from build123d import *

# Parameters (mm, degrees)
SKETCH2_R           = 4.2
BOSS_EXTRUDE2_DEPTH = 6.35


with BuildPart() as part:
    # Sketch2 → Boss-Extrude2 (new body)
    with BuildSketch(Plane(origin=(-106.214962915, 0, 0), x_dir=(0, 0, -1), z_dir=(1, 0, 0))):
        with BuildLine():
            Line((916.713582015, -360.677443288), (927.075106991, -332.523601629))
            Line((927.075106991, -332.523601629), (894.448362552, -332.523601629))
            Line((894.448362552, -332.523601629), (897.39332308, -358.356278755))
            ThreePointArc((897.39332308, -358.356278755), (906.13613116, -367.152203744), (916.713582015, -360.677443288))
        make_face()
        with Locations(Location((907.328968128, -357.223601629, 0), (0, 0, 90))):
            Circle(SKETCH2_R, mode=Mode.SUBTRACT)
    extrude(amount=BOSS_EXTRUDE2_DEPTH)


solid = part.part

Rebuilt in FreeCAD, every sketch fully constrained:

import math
import FreeCAD as App
import Part
import Sketcher
Q = App.Units.Quantity

doc = App.newDocument("Part")
body = doc.addObject("PartDesign::Body", "Body")

sketch1 = body.newObject("Sketcher::SketchObject", "Sketch")
sketch1.AttachmentSupport = (doc.getObject("YZ_Plane"), [""])
sketch1.MapMode = "FlatFace"
sketch1.AttachmentOffset = App.Placement(App.Vector(0, 0, -106.214963), App.Rotation())
sketch1.addGeometry([
    Part.LineSegment(App.Vector(-360.677443, -916.713582, 0), App.Vector(-332.523602, -927.075107, 0)),
    Part.LineSegment(App.Vector(-332.523602, -927.075107, 0), App.Vector(-332.523602, -894.448363, 0)),
    Part.LineSegment(App.Vector(-332.523602, -894.448363, 0), App.Vector(-358.356279, -897.393323, 0)),
    Part.ArcOfCircle(Part.Circle(App.Vector(-357.223602, -907.328968, 0), App.Vector(0, 0, 1), 10), math.radians(96.503719), math.radians(249.794752)),
    Part.Circle(App.Vector(-357.223602, -907.328968, 0), App.Vector(0, 0, 1), 4.2),
], False)
sketch1.addConstraint([
    Sketcher.Constraint("Coincident", 0, 2, 1, 1),
    Sketcher.Constraint("Coincident", 1, 2, 2, 1),
    Sketcher.Constraint("Tangent", 2, 2, 3, 1),
    Sketcher.Constraint("Tangent", 3, 2, 0, 1),
    Sketcher.Constraint("Vertical", 1),
    Sketcher.Constraint("Coincident", 4, 3, 3, 3),
    Sketcher.Constraint("Radius", 3, Q("10 mm")),
    Sketcher.Constraint("Diameter", 4, Q("8.4 mm")),
    Sketcher.Constraint("Distance", 0, Q("30 mm")),
    Sketcher.Constraint("Distance", 2, Q("26 mm")),
    Sketcher.Constraint("DistanceX", 3, 3, 0, 2, Q("24.7 mm")),
    Sketcher.Constraint("DistanceX", 3, 3, -1, 1, Q("357.223602 mm")),
    Sketcher.Constraint("DistanceY", 3, 3, -1, 1, Q("907.328968 mm")),
])
pad1 = body.newObject("PartDesign::Pad", "Pad")
pad1.Profile = sketch1
pad1.Length = 6.35

doc.recompute()
